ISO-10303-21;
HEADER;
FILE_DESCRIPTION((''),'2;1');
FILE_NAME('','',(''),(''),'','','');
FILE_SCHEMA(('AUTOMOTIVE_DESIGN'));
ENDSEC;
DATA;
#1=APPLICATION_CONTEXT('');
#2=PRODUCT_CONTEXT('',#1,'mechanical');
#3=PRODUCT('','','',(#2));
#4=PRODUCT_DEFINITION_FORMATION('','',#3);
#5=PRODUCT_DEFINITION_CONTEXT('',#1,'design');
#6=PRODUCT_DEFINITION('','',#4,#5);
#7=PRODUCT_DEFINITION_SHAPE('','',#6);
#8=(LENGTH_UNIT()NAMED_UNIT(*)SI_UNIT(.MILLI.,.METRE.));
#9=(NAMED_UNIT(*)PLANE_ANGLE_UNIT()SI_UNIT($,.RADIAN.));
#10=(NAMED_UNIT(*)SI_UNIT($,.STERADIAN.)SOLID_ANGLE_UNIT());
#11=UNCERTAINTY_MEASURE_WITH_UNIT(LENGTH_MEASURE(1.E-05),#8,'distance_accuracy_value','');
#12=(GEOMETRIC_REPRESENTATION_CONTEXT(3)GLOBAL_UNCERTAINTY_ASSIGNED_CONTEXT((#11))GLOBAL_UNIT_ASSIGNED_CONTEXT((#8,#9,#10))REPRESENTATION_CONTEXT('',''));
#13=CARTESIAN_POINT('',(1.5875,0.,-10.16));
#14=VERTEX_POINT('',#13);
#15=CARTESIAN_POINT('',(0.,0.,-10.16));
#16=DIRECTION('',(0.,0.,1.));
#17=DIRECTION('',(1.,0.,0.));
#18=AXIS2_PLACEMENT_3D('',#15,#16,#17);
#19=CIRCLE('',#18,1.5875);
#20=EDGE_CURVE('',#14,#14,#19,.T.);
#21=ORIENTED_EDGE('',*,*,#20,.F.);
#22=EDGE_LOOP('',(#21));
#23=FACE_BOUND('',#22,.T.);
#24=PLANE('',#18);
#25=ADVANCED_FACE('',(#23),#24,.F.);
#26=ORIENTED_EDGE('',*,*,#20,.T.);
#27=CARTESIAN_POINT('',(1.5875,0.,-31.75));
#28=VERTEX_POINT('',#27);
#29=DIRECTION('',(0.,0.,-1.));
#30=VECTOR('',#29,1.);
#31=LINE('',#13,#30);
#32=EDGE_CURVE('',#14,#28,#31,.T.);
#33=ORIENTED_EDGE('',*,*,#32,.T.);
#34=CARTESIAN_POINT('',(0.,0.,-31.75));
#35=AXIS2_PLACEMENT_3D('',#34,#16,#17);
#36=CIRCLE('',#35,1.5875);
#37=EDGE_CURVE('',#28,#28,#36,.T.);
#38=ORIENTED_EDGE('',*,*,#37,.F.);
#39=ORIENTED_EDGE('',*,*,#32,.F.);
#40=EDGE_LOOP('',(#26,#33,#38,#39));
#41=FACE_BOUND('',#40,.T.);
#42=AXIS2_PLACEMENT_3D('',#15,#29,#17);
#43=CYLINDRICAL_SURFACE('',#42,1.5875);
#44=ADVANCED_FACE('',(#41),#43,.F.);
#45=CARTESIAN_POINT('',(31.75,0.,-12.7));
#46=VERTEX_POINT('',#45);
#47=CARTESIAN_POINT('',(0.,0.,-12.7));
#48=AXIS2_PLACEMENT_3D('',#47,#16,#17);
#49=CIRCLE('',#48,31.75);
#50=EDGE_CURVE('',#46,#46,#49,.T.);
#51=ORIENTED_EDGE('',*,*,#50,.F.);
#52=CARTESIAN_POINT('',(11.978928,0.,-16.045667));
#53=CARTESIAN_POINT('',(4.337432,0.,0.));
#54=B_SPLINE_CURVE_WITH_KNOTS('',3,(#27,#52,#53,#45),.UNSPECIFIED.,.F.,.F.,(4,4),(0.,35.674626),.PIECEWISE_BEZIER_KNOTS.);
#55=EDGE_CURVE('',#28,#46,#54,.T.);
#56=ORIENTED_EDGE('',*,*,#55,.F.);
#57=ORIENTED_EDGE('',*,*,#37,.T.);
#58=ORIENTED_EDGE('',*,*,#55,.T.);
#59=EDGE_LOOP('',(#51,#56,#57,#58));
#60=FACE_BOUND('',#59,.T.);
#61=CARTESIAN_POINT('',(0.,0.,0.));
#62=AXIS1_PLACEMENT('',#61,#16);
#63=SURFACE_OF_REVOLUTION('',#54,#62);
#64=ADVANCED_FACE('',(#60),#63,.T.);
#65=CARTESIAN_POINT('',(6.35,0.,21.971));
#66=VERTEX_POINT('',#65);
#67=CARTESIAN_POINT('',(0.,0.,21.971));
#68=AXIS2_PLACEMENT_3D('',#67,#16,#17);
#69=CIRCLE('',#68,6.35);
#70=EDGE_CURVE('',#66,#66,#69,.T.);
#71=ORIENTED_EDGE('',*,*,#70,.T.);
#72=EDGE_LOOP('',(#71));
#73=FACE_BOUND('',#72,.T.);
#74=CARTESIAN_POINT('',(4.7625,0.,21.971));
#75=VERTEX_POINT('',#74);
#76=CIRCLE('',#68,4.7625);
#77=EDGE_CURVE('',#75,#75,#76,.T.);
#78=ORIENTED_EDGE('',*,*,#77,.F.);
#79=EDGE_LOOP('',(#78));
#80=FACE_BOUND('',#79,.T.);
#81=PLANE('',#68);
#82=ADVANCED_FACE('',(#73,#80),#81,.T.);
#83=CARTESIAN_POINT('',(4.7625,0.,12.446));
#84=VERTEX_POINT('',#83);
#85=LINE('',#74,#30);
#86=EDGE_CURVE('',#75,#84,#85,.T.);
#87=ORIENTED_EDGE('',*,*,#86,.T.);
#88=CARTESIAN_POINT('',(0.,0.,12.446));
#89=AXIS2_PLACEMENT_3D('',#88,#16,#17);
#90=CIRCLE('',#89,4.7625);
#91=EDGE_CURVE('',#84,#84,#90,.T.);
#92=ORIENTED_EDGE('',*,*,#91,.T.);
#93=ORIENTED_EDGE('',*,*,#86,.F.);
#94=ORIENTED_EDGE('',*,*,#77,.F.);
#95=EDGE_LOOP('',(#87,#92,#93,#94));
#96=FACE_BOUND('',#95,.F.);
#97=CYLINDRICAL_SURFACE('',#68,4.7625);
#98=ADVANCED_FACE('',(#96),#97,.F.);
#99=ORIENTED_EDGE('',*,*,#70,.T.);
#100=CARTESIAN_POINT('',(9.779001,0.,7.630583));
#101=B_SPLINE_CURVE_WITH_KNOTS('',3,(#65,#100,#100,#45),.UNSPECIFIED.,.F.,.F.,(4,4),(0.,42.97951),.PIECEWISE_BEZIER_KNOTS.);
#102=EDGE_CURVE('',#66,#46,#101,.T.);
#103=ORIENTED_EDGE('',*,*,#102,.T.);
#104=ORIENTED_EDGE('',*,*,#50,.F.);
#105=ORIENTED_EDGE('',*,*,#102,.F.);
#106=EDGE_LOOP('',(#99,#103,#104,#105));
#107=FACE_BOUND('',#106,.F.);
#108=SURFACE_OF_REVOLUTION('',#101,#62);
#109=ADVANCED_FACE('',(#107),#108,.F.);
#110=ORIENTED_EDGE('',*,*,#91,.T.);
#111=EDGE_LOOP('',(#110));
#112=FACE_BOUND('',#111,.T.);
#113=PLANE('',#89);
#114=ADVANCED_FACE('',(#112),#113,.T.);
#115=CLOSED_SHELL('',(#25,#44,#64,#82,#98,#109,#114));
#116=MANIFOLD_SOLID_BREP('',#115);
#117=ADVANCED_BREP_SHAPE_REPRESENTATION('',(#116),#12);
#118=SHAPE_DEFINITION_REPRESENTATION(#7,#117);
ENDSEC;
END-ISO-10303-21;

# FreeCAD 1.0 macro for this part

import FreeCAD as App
import Part
import Sketcher

V = App.Vector
Q = App.Units.Quantity

doc = App.newDocument("Part")
body = doc.addObject("PartDesign::Body", "Body")

# Sketch on XZ plane
sketch1 = body.newObject("Sketcher::SketchObject", "Sketch")
sketch1.AttachmentSupport = (doc.getObject("XZ_Plane"), [""])
sketch1.MapMode = "FlatFace"
sketch1.addGeometry([
    Part.BSplineCurve([V(1.5875, -31.75, 0), V(11.978928, -16.045667, 0), V(4.337432, 0, 0), V(31.75, -12.7, 0)], [4, 4], [0, 35.674626], False, 3, [1, 1, 1, 1], False),  # 0
    Part.BSplineCurve([V(6.35, 21.971, 0), V(9.779001, 7.630583, 0), V(9.779001, 7.630583, 0), V(31.75, -12.7, 0)], [4, 4], [0, 42.97951], False, 3, [1, 1, 1, 1], False),  # 1
    Part.LineSegment(V(6.35, 21.971, 0), V(0, 21.971, 0)),  # 2
    Part.LineSegment(V(0, 21.971, 0), V(0, -10.16, 0)),  # 3
    Part.LineSegment(V(0, -10.16, 0), V(1.5875, -10.16, 0)),  # 4
    Part.LineSegment(V(1.5875, -10.16, 0), V(1.5875, -31.75, 0)),  # 5
], False)
sketch1.addConstraint([
    Sketcher.Constraint("Block", 0),
    Sketcher.Constraint("Block", 1),
    Sketcher.Constraint("Coincident", 1, 1, 2, 1),
    Sketcher.Constraint("Coincident", 2, 2, 3, 1),
    Sketcher.Constraint("Coincident", 3, 2, 4, 1),
    Sketcher.Constraint("Coincident", 4, 2, 5, 1),
    Sketcher.Constraint("Coincident", 5, 2, 0, 1),
    Sketcher.Constraint("Horizontal", 2),
    Sketcher.Constraint("Vertical", 3),
    Sketcher.Constraint("Horizontal", 4),
    Sketcher.Constraint("Vertical", 5),
    Sketcher.Constraint("PointOnObject", 2, 2, -2),
    Sketcher.Constraint("DistanceY", 5, 2, 5, 1, Q("0.85 in")),
])
revolution = body.newObject("PartDesign::Revolution", "Revolution")
revolution.Profile = sketch1
revolution.ReferenceAxis = (sketch1, ["V_Axis"])
revolution.Angle = 360

# Sketch on XY plane
sketch2 = body.newObject("Sketcher::SketchObject", "Sketch001")
sketch2.AttachmentSupport = (doc.getObject("XY_Plane"), [""])
sketch2.MapMode = "FlatFace"
sketch2.AttachmentOffset = App.Placement(V(0, 0, 0.865 * 25.4), App.Rotation())
sketch2.addGeometry(Part.Circle(V(0, 0, 0), V(0, 0, 1), 4.7625), False)
sketch2.addConstraint([
    Sketcher.Constraint("Coincident", 0, 3, -1, 1),
    Sketcher.Constraint("Diameter", 0, Q("0.375 in")),
])
pocket1 = body.newObject("PartDesign::Pocket", "Pocket")
pocket1.Profile = sketch2
pocket1.Length = Q("0.375 in")

doc.recompute()
